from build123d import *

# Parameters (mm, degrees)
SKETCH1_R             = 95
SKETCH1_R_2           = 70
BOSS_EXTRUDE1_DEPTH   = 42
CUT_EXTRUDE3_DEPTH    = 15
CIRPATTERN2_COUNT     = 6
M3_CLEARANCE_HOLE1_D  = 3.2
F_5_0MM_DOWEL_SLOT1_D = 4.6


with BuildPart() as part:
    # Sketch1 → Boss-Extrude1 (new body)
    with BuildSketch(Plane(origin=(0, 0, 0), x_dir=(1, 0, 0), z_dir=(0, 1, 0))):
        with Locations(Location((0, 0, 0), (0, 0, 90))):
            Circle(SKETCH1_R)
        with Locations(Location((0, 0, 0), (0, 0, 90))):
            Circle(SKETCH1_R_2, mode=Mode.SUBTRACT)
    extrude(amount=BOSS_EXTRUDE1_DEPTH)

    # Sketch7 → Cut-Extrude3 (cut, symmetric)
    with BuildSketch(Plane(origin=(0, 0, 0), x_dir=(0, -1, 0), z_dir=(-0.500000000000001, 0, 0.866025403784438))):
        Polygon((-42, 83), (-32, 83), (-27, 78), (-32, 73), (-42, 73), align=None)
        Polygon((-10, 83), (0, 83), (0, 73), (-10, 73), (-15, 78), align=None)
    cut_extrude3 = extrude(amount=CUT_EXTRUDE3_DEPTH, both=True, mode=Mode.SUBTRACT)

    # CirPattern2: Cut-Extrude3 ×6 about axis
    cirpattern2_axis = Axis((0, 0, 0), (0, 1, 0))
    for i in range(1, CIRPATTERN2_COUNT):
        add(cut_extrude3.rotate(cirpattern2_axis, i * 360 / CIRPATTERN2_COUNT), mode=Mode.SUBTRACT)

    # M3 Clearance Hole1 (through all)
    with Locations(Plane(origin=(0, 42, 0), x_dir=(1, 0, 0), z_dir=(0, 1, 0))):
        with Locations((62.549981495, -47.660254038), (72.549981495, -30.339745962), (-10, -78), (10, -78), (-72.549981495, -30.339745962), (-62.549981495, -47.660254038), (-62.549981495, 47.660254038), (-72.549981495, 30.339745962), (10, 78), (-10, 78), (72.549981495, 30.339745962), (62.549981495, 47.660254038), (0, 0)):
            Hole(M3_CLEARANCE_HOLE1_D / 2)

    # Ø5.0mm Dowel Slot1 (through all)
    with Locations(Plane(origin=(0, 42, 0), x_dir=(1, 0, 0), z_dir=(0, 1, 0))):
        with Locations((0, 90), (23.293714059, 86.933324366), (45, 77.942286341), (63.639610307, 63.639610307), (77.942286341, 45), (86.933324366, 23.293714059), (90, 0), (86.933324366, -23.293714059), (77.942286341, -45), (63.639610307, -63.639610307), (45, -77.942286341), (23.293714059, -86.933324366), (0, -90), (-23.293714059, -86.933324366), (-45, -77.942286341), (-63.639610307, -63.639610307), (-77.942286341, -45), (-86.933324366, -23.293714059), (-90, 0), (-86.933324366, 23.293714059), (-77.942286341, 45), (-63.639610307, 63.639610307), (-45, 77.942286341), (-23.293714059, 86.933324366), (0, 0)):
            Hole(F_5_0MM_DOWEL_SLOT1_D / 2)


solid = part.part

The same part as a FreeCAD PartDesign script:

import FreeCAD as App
import Part
import Sketcher

V = App.Vector
Q = App.Units.Quantity


def add_polygon(sketch, points):
    """Adds a closed chain of lines whose ends are joined by coincident constraints."""
    first, n = sketch.GeometryCount, len(points)
    for a, b in zip(points, points[1:] + points[:1]):
        sketch.addGeometry(Part.LineSegment(App.Vector(*a, 0), App.Vector(*b, 0)), False)
    for i in range(n):
        sketch.addConstraint(Sketcher.Constraint("Coincident", first + i, 2, first + (i + 1) % n, 1))

doc = App.newDocument("Part")
body = doc.addObject("PartDesign::Body", "Body")

sketch1 = body.newObject("Sketcher::SketchObject", "Sketch")
sketch1.AttachmentSupport = (doc.getObject("XZ_Plane"), [""])
sketch1.MapMode = "FlatFace"
sketch1.addGeometry([
    Part.Circle(V(0, 0, 0), V(0, 0, 1), 95),
    Part.Circle(V(0, 0, 0), V(0, 0, 1), 70),
], False)
sketch1.addConstraint([
    Sketcher.Constraint("Coincident", 0, 3, -1, 1),
    Sketcher.Constraint("Coincident", 1, 3, -1, 1),
    Sketcher.Constraint("Diameter", 0, Q("190 mm")),
    Sketcher.Constraint("Diameter", 1, Q("140 mm")),
])
pad1 = body.newObject("PartDesign::Pad", "Pad")
pad1.Profile = sketch1
pad1.Length = 42
pad1.Reversed = True

sketch2 = body.newObject("Sketcher::SketchObject", "Sketch001")
sketch2.Placement = App.Placement(V(0, 0, 0), App.Rotation(V(0, -1, 0), V(0.866025404, 0, 0.5), V(-0.5, 0, 0.866025404), "ZXY"))
add_polygon(sketch2, [(-32, 83), (-42, 83), (-42, 73), (-32, 73), (-27, 78)])
add_polygon(sketch2, [(0, 83), (-10, 83), (-15, 78), (-10, 73), (0, 73)])
sketch2.addConstraint([
    Sketcher.Constraint("Horizontal", 0),
    Sketcher.Constraint("Vertical", 1),
    Sketcher.Constraint("Horizontal", 2),
    Sketcher.Constraint("Horizontal", 5),
    Sketcher.Constraint("Horizontal", 8),
    Sketcher.Constraint("Vertical", 9),
    Sketcher.Constraint("PointOnObject", 8, 2, -2),
    Sketcher.Constraint("Perpendicular", 3, 4),
    Sketcher.Constraint("Perpendicular", 4, 6),
    Sketcher.Constraint("Perpendicular", 6, 7),
    Sketcher.Constraint("Horizontal", 4, 2, 5, 2),
    Sketcher.Constraint("Horizontal", 3, 2, 6, 2),
    Sketcher.Constraint("Horizontal", 2, 2, 7, 2),
    Sketcher.Constraint("Vertical", 2, 2, 4, 2),
    Sketcher.Constraint("Vertical", 5, 2, 7, 2),
    Sketcher.Constraint("Equal", 2, 5),
    Sketcher.Constraint("Equal", 8, 1),
    Sketcher.Constraint("DistanceX", 0, 2, 0, 1, Q("10 mm")),
    Sketcher.Constraint("DistanceX", 0, 2, -1, 1, Q("42 mm")),
    Sketcher.Constraint("DistanceY", -1, 1, 0, 2, Q("83 mm")),
])
pocket1 = body.newObject("PartDesign::Pocket", "Pocket")
pocket1.Profile = sketch2
pocket1.Length = 30
pocket1.Midplane = True
doc.recompute()

polarpattern = body.newObject("PartDesign::PolarPattern", "PolarPattern")
polarpattern.Originals = [pocket1]
polarpattern.Axis = (doc.getObject("Y_Axis"), [""])
polarpattern.Angle = 360
polarpattern.Occurrences = 6
body.Tip = polarpattern

sketch3 = body.newObject("Sketcher::SketchObject", "Sketch002")
sketch3.AttachmentSupport = (doc.getObject("XZ_Plane"), [""])
sketch3.MapMode = "FlatFace"
sketch3.AttachmentOffset = App.Placement(V(0, 0, -42), App.Rotation())
sketch3.addGeometry([
    Part.Circle(V(62.5, 47.7, 0), V(0, 0, 1), 1.6),
    Part.Circle(V(72.5, 30.3, 0), V(0, 0, 1), 1.6),
    Part.Circle(V(-10, 78, 0), V(0, 0, 1), 1.6),
    Part.Circle(V(10, 78, 0), V(0, 0, 1), 1.6),
    Part.Circle(V(-72.5, 30.3, 0), V(0, 0, 1), 1.6),
    Part.Circle(V(-62.5, 47.7, 0), V(0, 0, 1), 1.6),
    Part.Circle(V(-62.5, -47.7, 0), V(0, 0, 1), 1.6),
    Part.Circle(V(-72.5, -30.3, 0), V(0, 0, 1), 1.6),
    Part.Circle(V(10, -78, 0), V(0, 0, 1), 1.6),
    Part.Circle(V(-10, -78, 0), V(0, 0, 1), 1.6),
    Part.Circle(V(72.5, -30.3, 0), V(0, 0, 1), 1.6),
    Part.Circle(V(62.5, -47.7, 0), V(0, 0, 1), 1.6),
    Part.Circle(V(0, 0, 0), V(0, 0, 1), 1.6),
], False)
sketch3.addConstraint([
    Sketcher.Constraint("Coincident", 12, 3, -1, 1),
    Sketcher.Constraint("Equal", 0, 1),
    Sketcher.Constraint("Equal", 1, 2),
    Sketcher.Constraint("Equal", 2, 3),
    Sketcher.Constraint("Equal", 3, 4),
    Sketcher.Constraint("Equal", 4, 5),
    Sketcher.Constraint("Equal", 5, 6),
    Sketcher.Constraint("Equal", 6, 7),
    Sketcher.Constraint("Equal", 7, 8),
    Sketcher.Constraint("Equal", 8, 9),
    Sketcher.Constraint("Equal", 9, 10),
    Sketcher.Constraint("Equal", 10, 11),
    Sketcher.Constraint("Equal", 11, 12),
    Sketcher.Constraint("Symmetric", 0, 3, 6, 3, -1, 1),
    Sketcher.Constraint("Symmetric", 1, 3, 7, 3, -1, 1),
    Sketcher.Constraint("Symmetric", 2, 3, 8, 3, -1, 1),
    Sketcher.Constraint("Symmetric", 3, 3, 9, 3, -1, 1),
    Sketcher.Constraint("Symmetric", 4, 3, 10, 3, -1, 1),
    Sketcher.Constraint("Symmetric", 5, 3, 11, 3, -1, 1),
    Sketcher.Constraint("Symmetric", 2, 3, 3, 3, -2),
    Sketcher.Constraint("Symmetric", 1, 3, 4, 3, -2),
    Sketcher.Constraint("Symmetric", 0, 3, 5, 3, -2),
    Sketcher.Constraint("Diameter", 0, Q("3.2 mm")),
    Sketcher.Constraint("DistanceX", 2, 3, -1, 1, Q("10 mm")),
    Sketcher.Constraint("DistanceY", -1, 1, 2, 3, Q("78 mm")),
    Sketcher.Constraint("DistanceX", 0, 3, 1, 3, Q("10 mm")),
    Sketcher.Constraint("DistanceY", 6, 3, 4, 3, Q("78 mm")),
    Sketcher.Constraint("DistanceX", -1, 1, 0, 3, Q("62.549981 mm")),
    Sketcher.Constraint("DistanceY", 1, 3, 0, 3, Q("17.320508 mm")),
])
doc.recompute()
hole = body.newObject("PartDesign::Hole", "Hole")
hole.Profile = sketch3
hole.ThreadType = "None"
hole.Diameter = 3.2
hole.DepthType = "ThroughAll"
hole.Reversed = True

sketch4 = body.newObject("Sketcher::SketchObject", "Sketch003")
sketch4.AttachmentSupport = (doc.getObject("XZ_Plane"), [""])
sketch4.MapMode = "FlatFace"
sketch4.AttachmentOffset = App.Placement(V(0, 0, -42), App.Rotation())
sketch4.addGeometry([
    Part.Circle(V(0, -90, 0), V(0, 0, 1), 2.3),
    Part.Circle(V(23.3, -86.9, 0), V(0, 0, 1), 2.3),
    Part.Circle(V(45, -77.9, 0), V(0, 0, 1), 2.3),
    Part.Circle(V(63.6, -63.6, 0), V(0, 0, 1), 2.3),
    Part.Circle(V(77.9, -45, 0), V(0, 0, 1), 2.3),
    Part.Circle(V(86.9, -23.3, 0), V(0, 0, 1), 2.3),
    Part.Circle(V(90, 0, 0), V(0, 0, 1), 2.3),
    Part.Circle(V(86.9, 23.3, 0), V(0, 0, 1), 2.3),
    Part.Circle(V(77.9, 45, 0), V(0, 0, 1), 2.3),
    Part.Circle(V(63.6, 63.6, 0), V(0, 0, 1), 2.3),
    Part.Circle(V(45, 77.9, 0), V(0, 0, 1), 2.3),
    Part.Circle(V(23.3, 86.9, 0), V(0, 0, 1), 2.3),
    Part.Circle(V(0, 90, 0), V(0, 0, 1), 2.3),
    Part.Circle(V(-23.3, 86.9, 0), V(0, 0, 1), 2.3),
    Part.Circle(V(-45, 77.9, 0), V(0, 0, 1), 2.3),
    Part.Circle(V(-63.6, 63.6, 0), V(0, 0, 1), 2.3),
    Part.Circle(V(-77.9, 45, 0), V(0, 0, 1), 2.3),
    Part.Circle(V(-86.9, 23.3, 0), V(0, 0, 1), 2.3),
    Part.Circle(V(-90, 0, 0), V(0, 0, 1), 2.3),
    Part.Circle(V(-86.9, -23.3, 0), V(0, 0, 1), 2.3),
    Part.Circle(V(-77.9, -45, 0), V(0, 0, 1), 2.3),
    Part.Circle(V(-63.6, -63.6, 0), V(0, 0, 1), 2.3),
    Part.Circle(V(-45, -77.9, 0), V(0, 0, 1), 2.3),
    Part.Circle(V(-23.3, -86.9, 0), V(0, 0, 1), 2.3),
    Part.Circle(V(0, 0, 0), V(0, 0, 1), 2.3),
], False)
sketch4.addConstraint([
    Sketcher.Constraint("Coincident", 24, 3, -1, 1),
    Sketcher.Constraint("Equal", 0, 1),
    Sketcher.Constraint("Equal", 1, 2),
    Sketcher.Constraint("Equal", 2, 3),
    Sketcher.Constraint("Equal", 3, 4),
    Sketcher.Constraint("Equal", 4, 5),
    Sketcher.Constraint("Equal", 5, 6),
    Sketcher.Constraint("Equal", 6, 7),
    Sketcher.Constraint("Equal", 7, 8),
    Sketcher.Constraint("Equal", 8, 9),
    Sketcher.Constraint("Equal", 9, 10),
    Sketcher.Constraint("Equal", 10, 11),
    Sketcher.Constraint("Equal", 11, 12),
    Sketcher.Constraint("Equal", 12, 13),
    Sketcher.Constraint("Equal", 13, 14),
    Sketcher.Constraint("Equal", 14, 15),
    Sketcher.Constraint("Equal", 15, 16),
    Sketcher.Constraint("Equal", 16, 17),
    Sketcher.Constraint("Equal", 17, 18),
    Sketcher.Constraint("Equal", 18, 19),
    Sketcher.Constraint("Equal", 19, 20),
    Sketcher.Constraint("Equal", 20, 21),
    Sketcher.Constraint("Equal", 21, 22),
    Sketcher.Constraint("Equal", 22, 23),
    Sketcher.Constraint("Equal", 23, 24),
    Sketcher.Constraint("Symmetric", 0, 3, 12, 3, -1, 1),
    Sketcher.Constraint("Symmetric", 1, 3, 13, 3, -1, 1),
    Sketcher.Constraint("Symmetric", 2, 3, 14, 3, -1, 1),
    Sketcher.Constraint("Symmetric", 3, 3, 15, 3, -1, 1),
    Sketcher.Constraint("Symmetric", 4, 3, 16, 3, -1, 1),
    Sketcher.Constraint("Symmetric", 5, 3, 17, 3, -1, 1),
    Sketcher.Constraint("Symmetric", 6, 3, 18, 3, -1, 1),
    Sketcher.Constraint("Symmetric", 7, 3, 19, 3, -1, 1),
    Sketcher.Constraint("Symmetric", 8, 3, 20, 3, -1, 1),
    Sketcher.Constraint("Symmetric", 9, 3, 21, 3, -1, 1),
    Sketcher.Constraint("Symmetric", 10, 3, 22, 3, -1, 1),
    Sketcher.Constraint("Symmetric", 11, 3, 23, 3, -1, 1),
    Sketcher.Constraint("Symmetric", 11, 3, 13, 3, -2),
    Sketcher.Constraint("Symmetric", 10, 3, 14, 3, -2),
    Sketcher.Constraint("Symmetric", 9, 3, 15, 3, -2),
    Sketcher.Constraint("Symmetric", 8, 3, 16, 3, -2),
    Sketcher.Constraint("Symmetric", 7, 3, 17, 3, -2),
    Sketcher.Constraint("PointOnObject", 0, 3, -2),
    Sketcher.Constraint("PointOnObject", 6, 3, -1),
    Sketcher.Constraint("Diameter", 0, Q("4.6 mm")),
    Sketcher.Constraint("DistanceY", 0, 3, -1, 1, Q("90 mm")),
    Sketcher.Constraint("DistanceX", -1, 1, 2, 3, Q("45 mm")),
    Sketcher.Constraint("DistanceY", 4, 3, -1, 1, Q("45 mm")),
    Sketcher.Constraint("DistanceX", -1, 1, 6, 3, Q("90 mm")),
    Sketcher.Constraint("DistanceY", 2, 3, 7, 3, Q("101.236 mm")),
    Sketcher.Constraint("DistanceX", 13, 3, 8, 3, Q("101.236 mm")),
    Sketcher.Constraint("DistanceX", -1, 1, 3, 3, Q("63.63961 mm")),
    Sketcher.Constraint("DistanceY", 3, 3, -1, 1, Q("63.63961 mm")),
    Sketcher.Constraint("DistanceY", 1, 3, 2, 3, Q("8.991038 mm")),
    Sketcher.Constraint("DistanceX", 4, 3, 5, 3, Q("8.991038 mm")),
    Sketcher.Constraint("DistanceX", 1, 3, 5, 3, Q("63.63961 mm")),
    Sketcher.Constraint("DistanceY", 1, 3, 5, 3, Q("63.63961 mm")),
])
doc.recompute()
hole2 = body.newObject("PartDesign::Hole", "Hole001")
hole2.Profile = sketch4
hole2.ThreadType = "None"
hole2.Diameter = 4.6
hole2.DepthType = "ThroughAll"
hole2.Reversed = True

doc.recompute()
